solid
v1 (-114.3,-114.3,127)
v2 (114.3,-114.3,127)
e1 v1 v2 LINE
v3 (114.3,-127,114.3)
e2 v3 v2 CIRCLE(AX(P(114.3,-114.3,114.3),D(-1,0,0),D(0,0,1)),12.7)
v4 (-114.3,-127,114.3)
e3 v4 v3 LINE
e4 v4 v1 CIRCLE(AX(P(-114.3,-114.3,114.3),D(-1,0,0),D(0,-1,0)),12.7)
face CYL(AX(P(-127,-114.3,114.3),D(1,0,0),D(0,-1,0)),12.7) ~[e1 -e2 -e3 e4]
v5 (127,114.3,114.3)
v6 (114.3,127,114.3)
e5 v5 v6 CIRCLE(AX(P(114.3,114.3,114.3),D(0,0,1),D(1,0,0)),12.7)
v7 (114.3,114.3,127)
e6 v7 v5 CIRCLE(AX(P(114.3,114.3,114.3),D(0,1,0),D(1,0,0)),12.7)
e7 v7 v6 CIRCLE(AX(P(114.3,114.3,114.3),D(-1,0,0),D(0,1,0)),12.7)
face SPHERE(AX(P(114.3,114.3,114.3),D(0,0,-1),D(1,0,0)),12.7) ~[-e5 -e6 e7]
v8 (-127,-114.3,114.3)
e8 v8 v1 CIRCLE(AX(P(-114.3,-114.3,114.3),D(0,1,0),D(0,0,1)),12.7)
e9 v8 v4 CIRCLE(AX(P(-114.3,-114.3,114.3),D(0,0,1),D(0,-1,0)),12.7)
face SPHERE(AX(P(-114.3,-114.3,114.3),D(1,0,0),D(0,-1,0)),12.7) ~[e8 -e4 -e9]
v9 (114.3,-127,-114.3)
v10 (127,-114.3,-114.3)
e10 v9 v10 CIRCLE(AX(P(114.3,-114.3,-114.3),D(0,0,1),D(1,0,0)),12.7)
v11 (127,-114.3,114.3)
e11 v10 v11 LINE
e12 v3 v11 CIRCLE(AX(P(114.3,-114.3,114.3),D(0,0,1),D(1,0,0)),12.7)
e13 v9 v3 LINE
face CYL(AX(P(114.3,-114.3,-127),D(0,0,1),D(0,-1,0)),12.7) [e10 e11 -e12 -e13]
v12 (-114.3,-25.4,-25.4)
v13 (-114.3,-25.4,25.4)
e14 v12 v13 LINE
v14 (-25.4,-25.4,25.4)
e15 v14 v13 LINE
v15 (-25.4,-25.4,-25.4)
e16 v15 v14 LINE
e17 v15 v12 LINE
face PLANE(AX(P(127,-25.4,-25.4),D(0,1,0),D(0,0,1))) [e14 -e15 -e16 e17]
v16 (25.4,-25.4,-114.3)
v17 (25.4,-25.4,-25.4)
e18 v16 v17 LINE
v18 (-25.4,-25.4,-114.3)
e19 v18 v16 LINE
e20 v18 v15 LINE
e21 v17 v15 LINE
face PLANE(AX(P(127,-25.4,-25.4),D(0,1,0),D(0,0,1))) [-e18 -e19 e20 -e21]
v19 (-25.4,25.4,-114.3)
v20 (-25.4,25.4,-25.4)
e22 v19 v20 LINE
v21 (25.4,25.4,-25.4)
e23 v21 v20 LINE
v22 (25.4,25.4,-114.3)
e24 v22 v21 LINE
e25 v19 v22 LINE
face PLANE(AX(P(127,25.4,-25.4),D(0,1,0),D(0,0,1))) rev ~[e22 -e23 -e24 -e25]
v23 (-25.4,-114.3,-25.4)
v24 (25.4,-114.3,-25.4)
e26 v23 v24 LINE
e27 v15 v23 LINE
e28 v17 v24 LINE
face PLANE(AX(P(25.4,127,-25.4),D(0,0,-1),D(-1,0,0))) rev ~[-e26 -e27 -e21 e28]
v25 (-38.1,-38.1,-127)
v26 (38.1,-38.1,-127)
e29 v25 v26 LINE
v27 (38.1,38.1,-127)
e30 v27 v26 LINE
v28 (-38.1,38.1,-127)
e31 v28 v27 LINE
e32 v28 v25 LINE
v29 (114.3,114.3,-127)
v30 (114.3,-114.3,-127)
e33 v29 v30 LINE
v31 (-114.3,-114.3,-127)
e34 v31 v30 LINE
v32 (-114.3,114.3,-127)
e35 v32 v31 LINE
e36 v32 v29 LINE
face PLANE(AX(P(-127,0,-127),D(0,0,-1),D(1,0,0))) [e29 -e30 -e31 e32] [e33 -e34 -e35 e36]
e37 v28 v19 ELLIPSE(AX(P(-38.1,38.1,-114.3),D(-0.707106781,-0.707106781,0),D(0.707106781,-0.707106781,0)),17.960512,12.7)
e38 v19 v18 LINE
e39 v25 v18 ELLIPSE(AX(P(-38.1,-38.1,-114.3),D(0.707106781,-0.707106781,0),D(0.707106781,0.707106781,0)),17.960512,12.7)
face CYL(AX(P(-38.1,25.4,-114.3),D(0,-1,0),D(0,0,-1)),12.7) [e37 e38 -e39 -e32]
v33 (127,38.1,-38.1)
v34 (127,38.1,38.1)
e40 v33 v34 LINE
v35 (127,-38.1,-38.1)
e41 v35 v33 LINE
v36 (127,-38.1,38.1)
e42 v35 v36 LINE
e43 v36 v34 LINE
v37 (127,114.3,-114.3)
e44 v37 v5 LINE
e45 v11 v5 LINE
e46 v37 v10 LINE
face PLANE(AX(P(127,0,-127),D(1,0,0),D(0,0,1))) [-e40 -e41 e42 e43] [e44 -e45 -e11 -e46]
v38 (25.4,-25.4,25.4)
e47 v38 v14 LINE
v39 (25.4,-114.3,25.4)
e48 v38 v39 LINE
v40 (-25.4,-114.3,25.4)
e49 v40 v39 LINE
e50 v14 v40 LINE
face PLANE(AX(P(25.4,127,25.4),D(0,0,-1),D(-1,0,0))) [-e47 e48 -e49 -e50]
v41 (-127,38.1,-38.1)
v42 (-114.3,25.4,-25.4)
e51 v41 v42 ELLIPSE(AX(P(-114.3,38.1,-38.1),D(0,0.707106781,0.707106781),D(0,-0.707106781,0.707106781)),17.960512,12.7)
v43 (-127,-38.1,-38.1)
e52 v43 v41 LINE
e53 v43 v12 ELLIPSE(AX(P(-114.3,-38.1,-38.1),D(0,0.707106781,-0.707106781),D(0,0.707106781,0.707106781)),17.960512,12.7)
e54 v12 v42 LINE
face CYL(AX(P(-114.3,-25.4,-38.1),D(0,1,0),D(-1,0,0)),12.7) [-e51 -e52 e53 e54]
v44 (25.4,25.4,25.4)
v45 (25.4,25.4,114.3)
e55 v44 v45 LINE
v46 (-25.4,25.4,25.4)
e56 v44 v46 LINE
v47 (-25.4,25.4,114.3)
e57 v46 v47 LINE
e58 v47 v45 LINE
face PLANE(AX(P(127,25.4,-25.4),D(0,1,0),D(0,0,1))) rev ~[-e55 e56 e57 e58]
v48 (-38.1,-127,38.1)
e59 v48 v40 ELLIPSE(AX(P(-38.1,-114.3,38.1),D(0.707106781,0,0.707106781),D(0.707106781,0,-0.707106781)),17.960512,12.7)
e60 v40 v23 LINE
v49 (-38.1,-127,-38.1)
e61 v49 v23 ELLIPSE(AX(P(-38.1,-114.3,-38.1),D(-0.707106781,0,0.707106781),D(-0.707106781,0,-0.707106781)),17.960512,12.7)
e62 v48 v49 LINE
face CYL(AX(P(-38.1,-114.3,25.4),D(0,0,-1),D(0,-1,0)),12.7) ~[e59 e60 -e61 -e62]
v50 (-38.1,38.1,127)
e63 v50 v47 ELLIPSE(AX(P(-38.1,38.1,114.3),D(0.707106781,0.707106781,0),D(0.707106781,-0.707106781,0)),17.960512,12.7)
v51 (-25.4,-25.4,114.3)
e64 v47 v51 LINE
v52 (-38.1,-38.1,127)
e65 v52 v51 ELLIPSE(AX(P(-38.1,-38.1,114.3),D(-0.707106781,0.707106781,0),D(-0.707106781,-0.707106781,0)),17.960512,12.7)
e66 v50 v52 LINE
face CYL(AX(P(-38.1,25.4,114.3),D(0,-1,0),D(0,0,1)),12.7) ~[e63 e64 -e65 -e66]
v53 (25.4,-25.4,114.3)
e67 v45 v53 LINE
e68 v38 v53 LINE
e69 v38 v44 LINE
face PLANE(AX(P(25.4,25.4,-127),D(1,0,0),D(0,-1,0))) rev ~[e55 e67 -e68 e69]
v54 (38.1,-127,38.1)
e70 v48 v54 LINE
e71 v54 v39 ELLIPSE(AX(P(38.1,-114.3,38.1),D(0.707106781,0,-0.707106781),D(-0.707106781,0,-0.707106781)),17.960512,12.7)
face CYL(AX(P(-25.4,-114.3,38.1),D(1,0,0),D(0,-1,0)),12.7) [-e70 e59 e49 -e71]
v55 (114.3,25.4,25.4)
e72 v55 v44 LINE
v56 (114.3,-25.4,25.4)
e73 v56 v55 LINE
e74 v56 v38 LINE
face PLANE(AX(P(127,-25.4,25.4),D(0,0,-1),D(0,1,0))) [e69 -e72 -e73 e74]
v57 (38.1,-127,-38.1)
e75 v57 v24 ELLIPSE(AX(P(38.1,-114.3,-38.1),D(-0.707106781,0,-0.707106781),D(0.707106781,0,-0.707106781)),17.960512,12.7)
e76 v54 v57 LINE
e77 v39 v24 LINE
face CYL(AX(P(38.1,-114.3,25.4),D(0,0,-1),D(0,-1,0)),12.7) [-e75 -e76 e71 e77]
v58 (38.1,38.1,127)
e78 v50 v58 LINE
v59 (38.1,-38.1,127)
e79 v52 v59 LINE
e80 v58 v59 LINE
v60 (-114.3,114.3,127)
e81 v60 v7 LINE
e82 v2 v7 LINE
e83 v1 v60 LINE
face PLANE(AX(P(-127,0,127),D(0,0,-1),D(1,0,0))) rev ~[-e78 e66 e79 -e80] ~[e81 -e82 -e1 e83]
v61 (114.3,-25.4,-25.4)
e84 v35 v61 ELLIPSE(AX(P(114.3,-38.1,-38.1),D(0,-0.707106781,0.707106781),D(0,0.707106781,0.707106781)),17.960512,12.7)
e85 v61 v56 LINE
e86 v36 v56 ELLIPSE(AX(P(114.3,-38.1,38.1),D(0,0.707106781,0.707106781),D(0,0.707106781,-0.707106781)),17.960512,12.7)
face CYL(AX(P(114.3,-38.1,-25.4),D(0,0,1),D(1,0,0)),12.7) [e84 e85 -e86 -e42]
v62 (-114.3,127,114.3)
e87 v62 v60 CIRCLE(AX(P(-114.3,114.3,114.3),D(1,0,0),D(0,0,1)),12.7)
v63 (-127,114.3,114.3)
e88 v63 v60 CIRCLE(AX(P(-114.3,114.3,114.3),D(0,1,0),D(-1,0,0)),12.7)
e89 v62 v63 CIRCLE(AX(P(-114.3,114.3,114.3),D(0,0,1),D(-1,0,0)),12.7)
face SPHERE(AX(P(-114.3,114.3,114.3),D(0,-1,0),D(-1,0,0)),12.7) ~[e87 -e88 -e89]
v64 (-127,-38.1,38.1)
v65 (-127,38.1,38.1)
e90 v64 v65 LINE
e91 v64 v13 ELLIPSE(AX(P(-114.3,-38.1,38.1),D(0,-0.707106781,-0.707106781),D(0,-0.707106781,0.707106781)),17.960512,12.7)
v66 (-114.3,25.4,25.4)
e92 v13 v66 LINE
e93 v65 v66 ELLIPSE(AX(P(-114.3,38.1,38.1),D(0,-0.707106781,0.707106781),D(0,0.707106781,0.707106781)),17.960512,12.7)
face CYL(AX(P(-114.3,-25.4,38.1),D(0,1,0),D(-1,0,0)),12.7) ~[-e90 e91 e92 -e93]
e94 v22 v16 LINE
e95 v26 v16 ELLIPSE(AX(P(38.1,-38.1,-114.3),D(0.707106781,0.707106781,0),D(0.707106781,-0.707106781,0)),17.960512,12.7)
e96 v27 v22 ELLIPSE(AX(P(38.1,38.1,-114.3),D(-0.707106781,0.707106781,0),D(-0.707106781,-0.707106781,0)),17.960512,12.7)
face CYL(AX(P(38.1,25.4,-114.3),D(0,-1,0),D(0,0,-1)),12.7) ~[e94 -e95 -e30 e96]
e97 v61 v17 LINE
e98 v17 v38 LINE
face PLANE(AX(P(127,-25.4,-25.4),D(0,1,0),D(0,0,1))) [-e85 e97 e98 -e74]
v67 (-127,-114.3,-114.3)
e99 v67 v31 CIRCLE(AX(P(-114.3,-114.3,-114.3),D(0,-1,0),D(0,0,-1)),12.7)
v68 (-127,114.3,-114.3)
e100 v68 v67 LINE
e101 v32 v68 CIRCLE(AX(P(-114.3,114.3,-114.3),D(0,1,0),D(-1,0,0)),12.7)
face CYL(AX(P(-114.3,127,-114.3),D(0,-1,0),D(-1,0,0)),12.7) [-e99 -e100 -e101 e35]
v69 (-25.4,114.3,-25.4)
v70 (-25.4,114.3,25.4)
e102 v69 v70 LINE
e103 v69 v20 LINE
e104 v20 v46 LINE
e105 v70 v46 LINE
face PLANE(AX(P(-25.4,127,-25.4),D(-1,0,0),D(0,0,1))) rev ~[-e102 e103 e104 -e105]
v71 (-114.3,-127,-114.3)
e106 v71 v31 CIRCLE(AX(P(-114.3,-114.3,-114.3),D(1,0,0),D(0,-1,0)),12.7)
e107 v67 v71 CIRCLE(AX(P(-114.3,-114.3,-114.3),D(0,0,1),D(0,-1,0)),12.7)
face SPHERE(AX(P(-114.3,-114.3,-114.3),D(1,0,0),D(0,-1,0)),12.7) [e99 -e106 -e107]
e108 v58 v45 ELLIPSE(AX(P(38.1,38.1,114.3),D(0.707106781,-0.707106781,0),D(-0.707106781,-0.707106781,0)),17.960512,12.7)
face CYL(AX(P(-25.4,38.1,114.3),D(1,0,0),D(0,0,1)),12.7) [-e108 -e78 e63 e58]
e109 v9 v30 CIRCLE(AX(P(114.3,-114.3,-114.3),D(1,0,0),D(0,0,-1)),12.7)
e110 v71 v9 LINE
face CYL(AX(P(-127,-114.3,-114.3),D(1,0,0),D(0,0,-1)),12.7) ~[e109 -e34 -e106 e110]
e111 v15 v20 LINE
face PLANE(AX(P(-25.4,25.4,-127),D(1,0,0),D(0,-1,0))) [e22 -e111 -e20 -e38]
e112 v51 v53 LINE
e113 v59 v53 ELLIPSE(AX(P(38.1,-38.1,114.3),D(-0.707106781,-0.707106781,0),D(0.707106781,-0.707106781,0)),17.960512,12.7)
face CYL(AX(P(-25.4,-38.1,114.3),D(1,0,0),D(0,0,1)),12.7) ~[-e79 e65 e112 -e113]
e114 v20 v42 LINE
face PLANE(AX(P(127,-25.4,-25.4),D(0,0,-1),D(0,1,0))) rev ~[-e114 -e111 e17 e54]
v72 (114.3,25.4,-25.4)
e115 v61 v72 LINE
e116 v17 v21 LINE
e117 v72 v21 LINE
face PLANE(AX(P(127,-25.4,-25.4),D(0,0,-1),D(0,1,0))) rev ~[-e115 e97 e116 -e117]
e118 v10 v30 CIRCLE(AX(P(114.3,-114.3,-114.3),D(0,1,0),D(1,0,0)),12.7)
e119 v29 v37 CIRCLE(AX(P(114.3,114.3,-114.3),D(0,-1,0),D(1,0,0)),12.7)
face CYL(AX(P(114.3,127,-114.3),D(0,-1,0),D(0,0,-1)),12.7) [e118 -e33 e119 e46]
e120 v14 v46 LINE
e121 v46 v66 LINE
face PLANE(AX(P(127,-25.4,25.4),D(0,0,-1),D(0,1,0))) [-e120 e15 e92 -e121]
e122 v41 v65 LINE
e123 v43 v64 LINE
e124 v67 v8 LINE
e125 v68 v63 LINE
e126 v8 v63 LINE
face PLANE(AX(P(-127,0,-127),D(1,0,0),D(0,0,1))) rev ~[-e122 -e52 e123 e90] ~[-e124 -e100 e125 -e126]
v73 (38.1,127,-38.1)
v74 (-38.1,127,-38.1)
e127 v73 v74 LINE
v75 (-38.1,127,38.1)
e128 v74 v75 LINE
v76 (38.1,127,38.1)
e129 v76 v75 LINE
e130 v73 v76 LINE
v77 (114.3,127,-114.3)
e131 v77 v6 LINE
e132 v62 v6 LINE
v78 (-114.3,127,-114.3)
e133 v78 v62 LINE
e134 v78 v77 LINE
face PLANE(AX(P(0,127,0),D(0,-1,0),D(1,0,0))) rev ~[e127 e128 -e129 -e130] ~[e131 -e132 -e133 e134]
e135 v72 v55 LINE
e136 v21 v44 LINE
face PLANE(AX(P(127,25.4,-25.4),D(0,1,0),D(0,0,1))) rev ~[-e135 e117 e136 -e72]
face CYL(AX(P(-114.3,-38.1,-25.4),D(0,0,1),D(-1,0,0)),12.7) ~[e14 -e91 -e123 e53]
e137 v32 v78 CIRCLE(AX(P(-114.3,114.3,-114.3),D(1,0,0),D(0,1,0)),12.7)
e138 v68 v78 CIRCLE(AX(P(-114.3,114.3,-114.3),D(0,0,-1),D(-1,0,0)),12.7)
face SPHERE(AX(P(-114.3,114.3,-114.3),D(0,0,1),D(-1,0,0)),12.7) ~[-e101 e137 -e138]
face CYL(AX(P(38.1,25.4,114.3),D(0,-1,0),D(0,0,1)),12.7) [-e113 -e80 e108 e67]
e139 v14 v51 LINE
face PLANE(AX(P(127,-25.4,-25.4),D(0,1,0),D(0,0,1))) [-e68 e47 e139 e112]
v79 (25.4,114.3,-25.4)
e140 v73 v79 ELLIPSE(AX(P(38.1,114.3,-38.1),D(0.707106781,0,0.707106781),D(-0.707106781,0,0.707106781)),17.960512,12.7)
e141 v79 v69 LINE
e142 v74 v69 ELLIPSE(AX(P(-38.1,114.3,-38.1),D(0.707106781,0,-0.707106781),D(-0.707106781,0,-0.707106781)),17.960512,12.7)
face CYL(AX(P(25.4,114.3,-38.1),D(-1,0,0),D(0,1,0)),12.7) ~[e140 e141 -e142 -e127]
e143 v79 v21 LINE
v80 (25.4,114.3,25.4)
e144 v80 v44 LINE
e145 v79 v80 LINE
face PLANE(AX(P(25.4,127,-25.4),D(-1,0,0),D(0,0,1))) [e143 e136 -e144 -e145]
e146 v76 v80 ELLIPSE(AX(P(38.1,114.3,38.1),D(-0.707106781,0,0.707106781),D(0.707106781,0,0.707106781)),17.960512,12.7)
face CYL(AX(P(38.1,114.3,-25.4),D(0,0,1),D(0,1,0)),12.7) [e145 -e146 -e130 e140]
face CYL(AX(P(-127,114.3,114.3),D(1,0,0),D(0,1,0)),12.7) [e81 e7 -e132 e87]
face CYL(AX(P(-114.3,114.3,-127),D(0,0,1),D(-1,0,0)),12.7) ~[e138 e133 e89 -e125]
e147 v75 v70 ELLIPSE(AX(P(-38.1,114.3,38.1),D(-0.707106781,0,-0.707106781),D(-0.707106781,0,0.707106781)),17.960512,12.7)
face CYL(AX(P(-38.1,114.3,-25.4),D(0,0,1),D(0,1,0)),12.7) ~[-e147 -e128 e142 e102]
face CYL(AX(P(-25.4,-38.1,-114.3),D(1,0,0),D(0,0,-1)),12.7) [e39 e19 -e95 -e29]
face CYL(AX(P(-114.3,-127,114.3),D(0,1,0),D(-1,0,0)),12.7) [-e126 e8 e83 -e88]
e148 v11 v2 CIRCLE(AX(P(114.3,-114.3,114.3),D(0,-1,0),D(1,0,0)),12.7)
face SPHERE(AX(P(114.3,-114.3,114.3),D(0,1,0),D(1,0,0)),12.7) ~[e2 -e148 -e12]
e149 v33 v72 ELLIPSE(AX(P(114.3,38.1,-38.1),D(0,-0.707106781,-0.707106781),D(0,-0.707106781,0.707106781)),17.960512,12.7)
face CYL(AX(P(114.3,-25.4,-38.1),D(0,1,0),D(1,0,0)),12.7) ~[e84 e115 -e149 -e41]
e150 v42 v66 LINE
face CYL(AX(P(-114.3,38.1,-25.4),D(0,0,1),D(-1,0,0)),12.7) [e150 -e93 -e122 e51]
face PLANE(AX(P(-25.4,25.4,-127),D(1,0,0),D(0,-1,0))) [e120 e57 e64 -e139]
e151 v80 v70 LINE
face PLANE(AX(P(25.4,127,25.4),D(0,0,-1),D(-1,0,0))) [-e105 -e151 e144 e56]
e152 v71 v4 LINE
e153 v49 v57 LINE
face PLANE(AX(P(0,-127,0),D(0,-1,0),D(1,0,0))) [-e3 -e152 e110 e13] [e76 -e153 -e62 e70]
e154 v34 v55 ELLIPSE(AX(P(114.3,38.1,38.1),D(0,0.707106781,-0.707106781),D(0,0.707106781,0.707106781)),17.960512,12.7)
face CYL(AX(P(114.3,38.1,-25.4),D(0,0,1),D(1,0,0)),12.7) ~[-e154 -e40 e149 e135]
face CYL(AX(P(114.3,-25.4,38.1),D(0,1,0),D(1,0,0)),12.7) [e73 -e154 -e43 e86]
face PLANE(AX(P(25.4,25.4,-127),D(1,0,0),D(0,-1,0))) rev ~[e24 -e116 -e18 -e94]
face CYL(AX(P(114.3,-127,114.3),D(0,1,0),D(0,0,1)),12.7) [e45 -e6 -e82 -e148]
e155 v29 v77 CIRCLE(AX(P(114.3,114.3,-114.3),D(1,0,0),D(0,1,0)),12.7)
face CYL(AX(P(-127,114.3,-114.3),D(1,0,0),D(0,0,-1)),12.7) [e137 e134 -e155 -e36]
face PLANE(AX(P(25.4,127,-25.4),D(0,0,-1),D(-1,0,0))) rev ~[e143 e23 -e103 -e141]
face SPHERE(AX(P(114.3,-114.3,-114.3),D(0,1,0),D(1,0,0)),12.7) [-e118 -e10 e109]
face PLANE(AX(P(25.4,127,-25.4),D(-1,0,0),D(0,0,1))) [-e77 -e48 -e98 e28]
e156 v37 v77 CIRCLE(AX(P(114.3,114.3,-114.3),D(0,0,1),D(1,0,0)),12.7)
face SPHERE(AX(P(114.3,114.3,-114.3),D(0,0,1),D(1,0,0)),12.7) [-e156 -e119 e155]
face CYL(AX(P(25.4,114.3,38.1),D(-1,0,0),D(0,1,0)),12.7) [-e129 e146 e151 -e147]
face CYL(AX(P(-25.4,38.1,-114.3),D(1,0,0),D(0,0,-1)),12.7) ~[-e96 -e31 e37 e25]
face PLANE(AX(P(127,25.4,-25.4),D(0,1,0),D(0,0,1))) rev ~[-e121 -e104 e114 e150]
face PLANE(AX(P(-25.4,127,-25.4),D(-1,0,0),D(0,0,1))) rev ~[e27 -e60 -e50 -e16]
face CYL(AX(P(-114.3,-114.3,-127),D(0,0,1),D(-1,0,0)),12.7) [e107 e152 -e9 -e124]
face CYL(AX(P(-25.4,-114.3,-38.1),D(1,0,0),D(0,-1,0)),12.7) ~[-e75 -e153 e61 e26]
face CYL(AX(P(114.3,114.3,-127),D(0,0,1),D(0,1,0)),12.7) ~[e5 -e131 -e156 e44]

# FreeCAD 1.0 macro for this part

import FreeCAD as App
import Part
import Sketcher
from FreeCAD import Vector
Q = App.Units.Quantity


def edges_at(feature, points):
    """Names of the edges that pass closest to the given points."""
    edges = feature.Shape.Edges
    near = lambda p: min(range(len(edges)), key=lambda i: edges[i].distToShape(Part.Vertex(*p))[0])
    return sorted({f"Edge{near(p) + 1}" for p in points})


def add_polygon(sketch, points):
    """Adds a closed chain of lines whose ends are joined by coincident constraints."""
    first, n = sketch.GeometryCount, len(points)
    for a, b in zip(points, points[1:] + points[:1]):
        sketch.addGeometry(Part.LineSegment(App.Vector(*a, 0), App.Vector(*b, 0)), False)
    for i in range(n):
        sketch.addConstraint(Sketcher.Constraint("Coincident", first + i, 2, first + (i + 1) % n, 1))

doc = App.newDocument("Part")
body = doc.addObject("PartDesign::Body", "Body")

# Sketch on XZ plane
sketch1 = doc.addObject("Sketcher::SketchObject", "Sketch")
body.addObject(sketch1)
sketch1.AttachmentSupport = (doc.XZ_Plane, [""])
sketch1.MapMode = "FlatFace"
add_polygon(sketch1, [(-127, 127), (-127, -127), (127, -127), (127, 127)])  # lines 0-3
sketch1.addConstraint(Sketcher.Constraint("Vertical", 0))
sketch1.addConstraint(Sketcher.Constraint("Horizontal", 1))
sketch1.addConstraint(Sketcher.Constraint("Vertical", 2))
sketch1.addConstraint(Sketcher.Constraint("Horizontal", 3))
sketch1.addConstraint(Sketcher.Constraint("Symmetric", 0, 2, 2, 2, -1, 1))
sketch1.addConstraint(Sketcher.Constraint("Equal", 3, 0))
sketch1.addConstraint(Sketcher.Constraint("DistanceX", 1, 1, 1, 2, Q("10 in")))
pad1 = doc.addObject("PartDesign::Pad", "Pad")
body.addObject(pad1)
pad1.Profile = sketch1
pad1.Length = Q("10 in")
pad1.Midplane = True

# Sketch on XY plane
sketch2 = doc.addObject("Sketcher::SketchObject", "Sketch001")
body.addObject(sketch2)
sketch2.AttachmentSupport = (doc.XY_Plane, [""])
sketch2.MapMode = "FlatFace"
sketch2.AttachmentOffset = App.Placement(Vector(0, 0, -5 * 25.4), App.Rotation())
add_polygon(sketch2, [(-25, -25), (-25, 25), (25, 25), (25, -25)])  # lines 0-3
sketch2.addConstraint(Sketcher.Constraint("Vertical", 0))
sketch2.addConstraint(Sketcher.Constraint("Horizontal", 1))
sketch2.addConstraint(Sketcher.Constraint("Vertical", 2))
sketch2.addConstraint(Sketcher.Constraint("Horizontal", 3))
sketch2.addConstraint(Sketcher.Constraint("Symmetric", 0, 2, 2, 2, -1, 1))
sketch2.addConstraint(Sketcher.Constraint("Equal", 3, 0))
sketch2.addConstraint(Sketcher.Constraint("DistanceX", 1, 1, 1, 2, Q("2 in")))
pocket1 = doc.addObject("PartDesign::Pocket", "Pocket")
body.addObject(pocket1)
pocket1.Profile = sketch2
pocket1.Type = "ThroughAll"
pocket1.Reversed = True

# Sketch on YZ plane
sketch3 = doc.addObject("Sketcher::SketchObject", "Sketch002")
body.addObject(sketch3)
sketch3.AttachmentSupport = (doc.YZ_Plane, [""])
sketch3.MapMode = "FlatFace"
sketch3.AttachmentOffset = App.Placement(Vector(0, 0, 5 * 25.4), App.Rotation())
add_polygon(sketch3, [(-25, 25), (-25, -25), (25, -25), (25, 25)])  # lines 0-3
sketch3.addConstraint(Sketcher.Constraint("Vertical", 0))
sketch3.addConstraint(Sketcher.Constraint("Horizontal", 1))
sketch3.addConstraint(Sketcher.Constraint("Vertical", 2))
sketch3.addConstraint(Sketcher.Constraint("Horizontal", 3))
sketch3.addConstraint(Sketcher.Constraint("Symmetric", 0, 2, 2, 2, -1, 1))
sketch3.addConstraint(Sketcher.Constraint("Equal", 3, 0))
sketch3.addConstraint(Sketcher.Constraint("DistanceX", 1, 1, 1, 2, Q("2 in")))
pocket2 = doc.addObject("PartDesign::Pocket", "Pocket001")
body.addObject(pocket2)
pocket2.Profile = sketch3
pocket2.Type = "ThroughAll"

# Sketch on XZ plane
sketch4 = doc.addObject("Sketcher::SketchObject", "Sketch003")
body.addObject(sketch4)
sketch4.AttachmentSupport = (doc.XZ_Plane, [""])
sketch4.MapMode = "FlatFace"
sketch4.AttachmentOffset = App.Placement(Vector(0, 0, -5 * 25.4), App.Rotation())
add_polygon(sketch4, [(25, 25), (25, -25), (-25, -25), (-25, 25)])  # lines 0-3
sketch4.addConstraint(Sketcher.Constraint("Vertical", 0))
sketch4.addConstraint(Sketcher.Constraint("Horizontal", 1))
sketch4.addConstraint(Sketcher.Constraint("Vertical", 2))
sketch4.addConstraint(Sketcher.Constraint("Horizontal", 3))
sketch4.addConstraint(Sketcher.Constraint("Symmetric", 0, 2, 2, 2, -1, 1))
sketch4.addConstraint(Sketcher.Constraint("Equal", 3, 0))
sketch4.addConstraint(Sketcher.Constraint("DistanceX", 1, 2, 1, 1, Q("2 in")))
pocket3 = doc.addObject("PartDesign::Pocket", "Pocket002")
body.addObject(pocket3)
pocket3.Profile = sketch4
pocket3.Type = "ThroughAll"
pocket3.Reversed = True
doc.recompute()

fillet = doc.addObject("PartDesign::Fillet", "Fillet")
body.addObject(fillet)
fillet.Base = (pocket3, edges_at(pocket3, [
    (127, 127, 0),
    (127, 0, -127),
    (127, 0, 127),
    (127, -127, 0),
    (127, 25.4, 0),
    (127, 0, 25.4),
    (127, -25.4, 0),
    (127, 0, -25.4),
    (0, -127, -127),
    (0, -127, 127),
    (-127, -127, 0),
    (-25.4, -127, 0),
    (0, -127, -25.4),
    (25.4, -127, 0),
    (0, -127, 25.4),
    (-127, 0, 127),
    (-127, 127, 0),
    (-127, 0, -127),
    (-127, 25.4, 0),
    (-127, 0, -25.4),
    (-127, -25.4, 0),
    (-127, 0, 25.4),
    (0, 127, -127),
    (0, 127, 127),
    (0, 127, -25.4),
    (25.4, 127, 0),
    (0, 127, 25.4),
    (-25.4, 127, 0),
    (25.4, 0, 127),
    (0, 25.4, 127),
    (-25.4, 0, 127),
    (0, -25.4, 127),
    (25.4, 0, -127),
    (0, -25.4, -127),
    (-25.4, 0, -127),
    (0, 25.4, -127),
]))
fillet.Radius = Q("0.5 in")

doc.recompute()
